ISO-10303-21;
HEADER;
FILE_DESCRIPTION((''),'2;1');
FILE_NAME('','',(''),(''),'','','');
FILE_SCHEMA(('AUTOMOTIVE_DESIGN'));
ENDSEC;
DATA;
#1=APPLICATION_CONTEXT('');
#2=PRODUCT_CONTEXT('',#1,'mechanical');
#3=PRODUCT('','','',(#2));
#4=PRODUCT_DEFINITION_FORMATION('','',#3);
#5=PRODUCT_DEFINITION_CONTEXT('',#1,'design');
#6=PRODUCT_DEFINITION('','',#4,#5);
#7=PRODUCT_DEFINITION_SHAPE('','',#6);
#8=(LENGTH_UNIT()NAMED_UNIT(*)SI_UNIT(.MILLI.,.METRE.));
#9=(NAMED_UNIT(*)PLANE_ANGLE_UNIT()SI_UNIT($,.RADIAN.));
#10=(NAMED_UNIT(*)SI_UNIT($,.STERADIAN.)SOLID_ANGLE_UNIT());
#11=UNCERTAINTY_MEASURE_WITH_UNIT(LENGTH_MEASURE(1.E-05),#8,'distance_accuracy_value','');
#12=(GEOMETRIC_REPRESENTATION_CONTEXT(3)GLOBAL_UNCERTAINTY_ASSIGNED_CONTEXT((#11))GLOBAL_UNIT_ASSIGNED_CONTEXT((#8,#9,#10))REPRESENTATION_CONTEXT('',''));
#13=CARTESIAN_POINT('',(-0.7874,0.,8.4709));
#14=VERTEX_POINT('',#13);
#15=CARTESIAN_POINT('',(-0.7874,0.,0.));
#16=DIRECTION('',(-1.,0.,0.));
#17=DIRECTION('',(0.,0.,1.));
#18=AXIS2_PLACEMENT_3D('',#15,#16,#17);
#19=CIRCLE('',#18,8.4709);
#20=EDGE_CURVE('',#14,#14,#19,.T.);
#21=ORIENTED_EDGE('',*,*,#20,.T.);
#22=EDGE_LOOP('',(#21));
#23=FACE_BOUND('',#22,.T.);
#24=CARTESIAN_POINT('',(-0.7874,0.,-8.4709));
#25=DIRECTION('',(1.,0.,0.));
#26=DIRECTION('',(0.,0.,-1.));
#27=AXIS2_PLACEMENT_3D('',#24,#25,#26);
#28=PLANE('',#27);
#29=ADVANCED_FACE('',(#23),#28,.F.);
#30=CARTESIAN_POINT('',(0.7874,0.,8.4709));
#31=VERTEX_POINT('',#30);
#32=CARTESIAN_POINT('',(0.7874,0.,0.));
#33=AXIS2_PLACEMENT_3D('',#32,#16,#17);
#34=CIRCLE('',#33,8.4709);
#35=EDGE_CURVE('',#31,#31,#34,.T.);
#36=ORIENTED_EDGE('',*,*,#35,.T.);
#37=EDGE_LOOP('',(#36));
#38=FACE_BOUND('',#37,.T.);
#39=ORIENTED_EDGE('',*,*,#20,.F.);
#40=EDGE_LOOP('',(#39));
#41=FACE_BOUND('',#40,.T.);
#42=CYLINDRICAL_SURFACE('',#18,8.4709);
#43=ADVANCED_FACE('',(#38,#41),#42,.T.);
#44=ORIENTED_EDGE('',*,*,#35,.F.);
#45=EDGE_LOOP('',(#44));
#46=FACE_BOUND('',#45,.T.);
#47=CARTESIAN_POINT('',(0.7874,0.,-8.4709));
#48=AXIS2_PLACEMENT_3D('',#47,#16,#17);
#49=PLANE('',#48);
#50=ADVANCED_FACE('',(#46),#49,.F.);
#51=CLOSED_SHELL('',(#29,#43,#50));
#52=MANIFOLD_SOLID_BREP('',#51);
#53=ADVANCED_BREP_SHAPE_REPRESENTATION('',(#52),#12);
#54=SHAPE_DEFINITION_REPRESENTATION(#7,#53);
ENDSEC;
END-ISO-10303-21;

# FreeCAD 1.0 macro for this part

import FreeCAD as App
import Part
import Sketcher
Q = App.Units.Quantity


def add_polygon(sketch, points):
    """Adds a closed chain of lines whose ends are joined by coincident constraints."""
    first, n = sketch.GeometryCount, len(points)
    for a, b in zip(points, points[1:] + points[:1]):
        sketch.addGeometry(Part.LineSegment(App.Vector(*a, 0), App.Vector(*b, 0)), False)
    for i in range(n):
        sketch.addConstraint(Sketcher.Constraint("Coincident", first + i, 2, first + (i + 1) % n, 1))

doc = App.newDocument("Part")
body = doc.addObject("PartDesign::Body", "Body")

sketch1 = body.newObject("Sketcher::SketchObject", "Sketch")
sketch1.AttachmentSupport = (doc.getObject("XZ_Plane"), [""])
sketch1.MapMode = "FlatFace"
add_polygon(sketch1, [(-0.8, -8.5), (-0.8, 0), (0.8, 0), (0.8, -8.5)])
sketch1.addConstraint(Sketcher.Constraint("Vertical", 0))
sketch1.addConstraint(Sketcher.Constraint("Horizontal", 1))
sketch1.addConstraint(Sketcher.Constraint("Vertical", 2))
sketch1.addConstraint(Sketcher.Constraint("Horizontal", 3))
sketch1.addConstraint(Sketcher.Constraint("Symmetric", 0, 2, 1, 2, -1, 1))
sketch1.addConstraint(Sketcher.Constraint("DistanceX", 1, 1, 1, 2, Q("0.062 in")))
sketch1.addConstraint(Sketcher.Constraint("DistanceY", 0, 1, 0, 2, Q("0.3335 in")))
revolution = body.newObject("PartDesign::Revolution", "Revolution")
revolution.Profile = sketch1
revolution.ReferenceAxis = (sketch1, ["H_Axis"])
revolution.Angle = 360

doc.recompute()
